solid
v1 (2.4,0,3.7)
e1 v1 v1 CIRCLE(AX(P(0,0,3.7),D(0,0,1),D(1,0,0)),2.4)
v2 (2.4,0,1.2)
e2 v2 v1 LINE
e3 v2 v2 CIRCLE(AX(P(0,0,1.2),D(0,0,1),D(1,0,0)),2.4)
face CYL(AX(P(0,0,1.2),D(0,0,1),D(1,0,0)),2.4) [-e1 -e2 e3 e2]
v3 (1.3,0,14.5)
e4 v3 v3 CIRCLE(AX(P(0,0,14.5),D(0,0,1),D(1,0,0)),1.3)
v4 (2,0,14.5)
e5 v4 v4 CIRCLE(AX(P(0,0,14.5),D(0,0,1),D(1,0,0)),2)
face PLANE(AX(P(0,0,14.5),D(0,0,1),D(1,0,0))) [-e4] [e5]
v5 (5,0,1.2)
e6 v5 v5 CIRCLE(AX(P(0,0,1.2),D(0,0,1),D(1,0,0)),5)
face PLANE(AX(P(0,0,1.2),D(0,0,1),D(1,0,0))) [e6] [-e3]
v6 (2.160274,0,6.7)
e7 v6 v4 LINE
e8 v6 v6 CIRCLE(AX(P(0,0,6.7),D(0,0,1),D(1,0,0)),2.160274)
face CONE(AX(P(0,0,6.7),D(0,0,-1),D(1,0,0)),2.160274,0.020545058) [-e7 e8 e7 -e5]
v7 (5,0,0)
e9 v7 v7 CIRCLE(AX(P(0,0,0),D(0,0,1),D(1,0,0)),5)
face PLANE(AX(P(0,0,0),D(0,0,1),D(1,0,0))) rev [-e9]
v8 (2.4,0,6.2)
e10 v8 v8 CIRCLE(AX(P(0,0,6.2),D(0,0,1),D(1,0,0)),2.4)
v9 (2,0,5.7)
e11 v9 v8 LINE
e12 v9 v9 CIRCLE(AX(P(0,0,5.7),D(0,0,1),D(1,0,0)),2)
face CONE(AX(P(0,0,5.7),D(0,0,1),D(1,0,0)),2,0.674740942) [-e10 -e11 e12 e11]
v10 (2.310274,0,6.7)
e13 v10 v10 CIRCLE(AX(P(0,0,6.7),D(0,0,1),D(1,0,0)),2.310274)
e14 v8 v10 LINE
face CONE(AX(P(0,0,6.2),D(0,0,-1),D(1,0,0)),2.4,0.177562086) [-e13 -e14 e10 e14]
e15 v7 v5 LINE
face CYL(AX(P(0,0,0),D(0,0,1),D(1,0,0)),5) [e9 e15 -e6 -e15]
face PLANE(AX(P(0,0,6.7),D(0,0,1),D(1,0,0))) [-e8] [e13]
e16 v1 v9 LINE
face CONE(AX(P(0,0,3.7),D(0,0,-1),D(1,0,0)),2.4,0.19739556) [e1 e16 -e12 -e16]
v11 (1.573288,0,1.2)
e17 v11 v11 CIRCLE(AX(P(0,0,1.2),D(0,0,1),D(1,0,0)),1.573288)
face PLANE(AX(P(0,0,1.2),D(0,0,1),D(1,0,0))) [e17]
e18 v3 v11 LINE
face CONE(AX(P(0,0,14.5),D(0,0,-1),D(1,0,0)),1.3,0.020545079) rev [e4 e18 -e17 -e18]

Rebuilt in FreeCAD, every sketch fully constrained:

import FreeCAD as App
import Part
import Sketcher
from FreeCAD import Vector

doc = App.newDocument("Part")
body = doc.addObject("PartDesign::Body", "Body")

# Sketch on XZ plane
sketch1 = body.newObject("Sketcher::SketchObject", "Sketch")
sketch1.AttachmentSupport = (doc.getObject("XZ_Plane"), [""])
sketch1.MapMode = "FlatFace"
sketch1.addGeometry([
    Part.LineSegment(Vector(1.3, 14.5, 0), Vector(1.57, 1.2, 0)),  # 0
    Part.LineSegment(Vector(1.57, 1.2, 0), Vector(0, 1.2, 0)),  # 1
    Part.LineSegment(Vector(0, 1.2, 0), Vector(0, 0, 0)),  # 2
    Part.LineSegment(Vector(0, 0, 0), Vector(5, 0, 0)),  # 3
    Part.LineSegment(Vector(5, 0, 0), Vector(5, 1.2, 0)),  # 4
    Part.LineSegment(Vector(5, 1.2, 0), Vector(2.4, 1.2, 0)),  # 5
    Part.LineSegment(Vector(2.4, 1.2, 0), Vector(2.4, 3.7, 0)),  # 6
    Part.LineSegment(Vector(2.4, 3.7, 0), Vector(2, 5.7, 0)),  # 7
    Part.LineSegment(Vector(2, 5.7, 0), Vector(2.4, 6.2, 0)),  # 8
    Part.LineSegment(Vector(2.4, 6.2, 0), Vector(2.31, 6.7, 0)),  # 9
    Part.LineSegment(Vector(2.31, 6.7, 0), Vector(2.16, 6.7, 0)),  # 10
    Part.LineSegment(Vector(2.16, 6.7, 0), Vector(2, 14.5, 0)),  # 11
    Part.LineSegment(Vector(2, 14.5, 0), Vector(1.3, 14.5, 0)),  # 12
], False)
sketch1.addConstraint([
    Sketcher.Constraint("Coincident", 0, 2, 1, 1),
    Sketcher.Constraint("Coincident", 1, 2, 2, 1),
    Sketcher.Constraint("Coincident", 2, 2, 3, 1),
    Sketcher.Constraint("Coincident", 3, 2, 4, 1),
    Sketcher.Constraint("Coincident", 4, 2, 5, 1),
    Sketcher.Constraint("Coincident", 5, 2, 6, 1),
    Sketcher.Constraint("Coincident", 6, 2, 7, 1),
    Sketcher.Constraint("Coincident", 7, 2, 8, 1),
    Sketcher.Constraint("Coincident", 8, 2, 9, 1),
    Sketcher.Constraint("Coincident", 9, 2, 10, 1),
    Sketcher.Constraint("Coincident", 10, 2, 11, 1),
    Sketcher.Constraint("Coincident", 11, 2, 12, 1),
    Sketcher.Constraint("Coincident", 12, 2, 0, 1),
    Sketcher.Constraint("Horizontal", 1),
    Sketcher.Constraint("Vertical", 2),
    Sketcher.Constraint("Horizontal", 3),
    Sketcher.Constraint("Vertical", 4),
    Sketcher.Constraint("Horizontal", 5),
    Sketcher.Constraint("Vertical", 6),
    Sketcher.Constraint("Horizontal", 10),
    Sketcher.Constraint("Horizontal", 12),
    Sketcher.Constraint("Coincident", 2, 2, -1, 1),
    Sketcher.Constraint("Parallel", 0, 11),
    Sketcher.Constraint("Horizontal", 1, 2, 4, 2),
    Sketcher.Constraint("Vertical", 6, 2, 8, 2),
    Sketcher.Constraint("Vertical", 7, 2, 11, 2),
    Sketcher.Constraint("DistanceX", 3, 1, 3, 2, 5.0),
    Sketcher.Constraint("DistanceX", 5, 2, 5, 1, 2.6),
    Sketcher.Constraint("DistanceX", 12, 2, 12, 1, 0.7),
    Sketcher.Constraint("DistanceY", 2, 2, 2, 1, 1.2),
    Sketcher.Constraint("DistanceY", 6, 1, 6, 2, 2.5),
    Sketcher.Constraint("DistanceX", -1, 1, 7, 2, 2.0),
    Sketcher.Constraint("DistanceY", 6, 2, 7, 2, 2.0),
    Sketcher.Constraint("DistanceY", 5, 2, 8, 2, 5.0),
    Sketcher.Constraint("DistanceY", 7, 2, 9, 2, 1.0),
    Sketcher.Constraint("DistanceX", 10, 2, 10, 1, 0.15),
    Sketcher.Constraint("DistanceY", -1, 1, 11, 2, 14.5),
    Sketcher.Constraint("DistanceX", 1, 2, 1, 1, 1.573288),
])
revolution = body.newObject("PartDesign::Revolution", "Revolution")
revolution.Profile = sketch1
revolution.ReferenceAxis = (sketch1, ["V_Axis"])
revolution.Angle = 360

doc.recompute()
